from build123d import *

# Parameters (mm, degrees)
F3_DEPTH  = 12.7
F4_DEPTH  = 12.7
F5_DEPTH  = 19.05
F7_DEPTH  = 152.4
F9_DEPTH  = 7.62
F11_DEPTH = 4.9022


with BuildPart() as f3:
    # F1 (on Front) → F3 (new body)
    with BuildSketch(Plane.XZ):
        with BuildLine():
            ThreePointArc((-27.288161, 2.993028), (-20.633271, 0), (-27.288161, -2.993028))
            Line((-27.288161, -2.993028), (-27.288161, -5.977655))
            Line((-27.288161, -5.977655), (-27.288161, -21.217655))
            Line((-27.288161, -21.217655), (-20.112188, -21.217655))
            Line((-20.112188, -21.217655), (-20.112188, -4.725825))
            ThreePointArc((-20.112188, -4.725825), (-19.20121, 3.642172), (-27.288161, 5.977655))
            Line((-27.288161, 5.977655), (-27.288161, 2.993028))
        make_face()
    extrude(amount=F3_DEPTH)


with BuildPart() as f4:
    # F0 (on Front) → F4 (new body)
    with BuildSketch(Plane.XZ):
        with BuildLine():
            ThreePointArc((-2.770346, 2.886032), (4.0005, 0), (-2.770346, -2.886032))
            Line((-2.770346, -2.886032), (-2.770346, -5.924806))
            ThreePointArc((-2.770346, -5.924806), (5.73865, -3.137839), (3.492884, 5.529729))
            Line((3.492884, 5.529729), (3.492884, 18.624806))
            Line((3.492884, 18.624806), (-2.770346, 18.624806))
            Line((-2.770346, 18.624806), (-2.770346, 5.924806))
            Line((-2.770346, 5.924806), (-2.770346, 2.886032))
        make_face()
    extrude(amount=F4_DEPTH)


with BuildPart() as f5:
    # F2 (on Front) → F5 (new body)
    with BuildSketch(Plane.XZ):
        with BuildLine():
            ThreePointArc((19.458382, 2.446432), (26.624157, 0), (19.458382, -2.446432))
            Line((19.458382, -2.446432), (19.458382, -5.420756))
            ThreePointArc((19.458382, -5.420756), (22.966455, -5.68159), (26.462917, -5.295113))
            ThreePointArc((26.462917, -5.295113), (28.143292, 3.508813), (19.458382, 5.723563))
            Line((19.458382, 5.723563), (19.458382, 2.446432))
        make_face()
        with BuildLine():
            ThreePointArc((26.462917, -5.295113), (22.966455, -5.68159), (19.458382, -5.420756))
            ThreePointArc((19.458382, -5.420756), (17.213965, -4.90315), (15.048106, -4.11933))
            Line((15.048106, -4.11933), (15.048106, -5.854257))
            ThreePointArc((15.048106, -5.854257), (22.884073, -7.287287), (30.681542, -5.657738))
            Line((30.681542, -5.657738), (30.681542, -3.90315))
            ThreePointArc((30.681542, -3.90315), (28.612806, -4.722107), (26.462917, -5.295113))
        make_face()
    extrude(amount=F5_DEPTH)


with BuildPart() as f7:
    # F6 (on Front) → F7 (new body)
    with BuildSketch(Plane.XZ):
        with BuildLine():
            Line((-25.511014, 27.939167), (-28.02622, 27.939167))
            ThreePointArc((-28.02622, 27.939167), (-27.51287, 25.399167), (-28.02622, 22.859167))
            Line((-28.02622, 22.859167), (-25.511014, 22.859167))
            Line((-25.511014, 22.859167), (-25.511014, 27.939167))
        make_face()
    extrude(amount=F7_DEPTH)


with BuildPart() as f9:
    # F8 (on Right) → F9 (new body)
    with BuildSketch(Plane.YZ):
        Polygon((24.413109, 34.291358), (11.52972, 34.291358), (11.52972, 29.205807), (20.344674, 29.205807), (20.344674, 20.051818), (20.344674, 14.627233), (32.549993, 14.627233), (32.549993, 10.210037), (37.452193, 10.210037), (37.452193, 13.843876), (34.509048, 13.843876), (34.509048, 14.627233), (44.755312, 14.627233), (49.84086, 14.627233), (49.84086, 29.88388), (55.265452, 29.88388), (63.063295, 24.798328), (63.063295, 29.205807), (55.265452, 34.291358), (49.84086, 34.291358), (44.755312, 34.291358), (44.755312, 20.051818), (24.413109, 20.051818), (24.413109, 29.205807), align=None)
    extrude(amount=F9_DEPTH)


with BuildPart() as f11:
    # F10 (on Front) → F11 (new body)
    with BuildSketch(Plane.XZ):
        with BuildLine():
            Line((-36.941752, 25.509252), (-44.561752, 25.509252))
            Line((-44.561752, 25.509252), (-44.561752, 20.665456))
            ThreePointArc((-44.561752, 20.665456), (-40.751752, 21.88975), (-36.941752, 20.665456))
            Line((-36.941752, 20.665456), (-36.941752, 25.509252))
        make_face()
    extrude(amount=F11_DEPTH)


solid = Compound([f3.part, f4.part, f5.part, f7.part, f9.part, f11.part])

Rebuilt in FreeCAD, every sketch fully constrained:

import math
import FreeCAD as App
import Part
import Sketcher
from FreeCAD import Vector
Q = App.Units.Quantity


def add_polygon(sketch, points):
    """Adds a closed chain of lines whose ends are joined by coincident constraints."""
    first, n = sketch.GeometryCount, len(points)
    for a, b in zip(points, points[1:] + points[:1]):
        sketch.addGeometry(Part.LineSegment(App.Vector(*a, 0), App.Vector(*b, 0)), False)
    for i in range(n):
        sketch.addConstraint(Sketcher.Constraint("Coincident", first + i, 2, first + (i + 1) % n, 1))

doc = App.newDocument("Part")
body = doc.addObject("PartDesign::Body", "Body")

# Sketch on XZ plane
sketch1 = body.newObject("Sketcher::SketchObject", "Sketch")
sketch1.AttachmentSupport = (doc.getObject("XZ_Plane"), [""])
sketch1.MapMode = "FlatFace"
sketch1.addGeometry([
    Part.ArcOfCircle(Part.Circle(Vector(-24.6, 0, 0), Vector(0, 0, 1), 4), math.radians(-132), math.radians(132)),  # 0
    Part.LineSegment(Vector(-27.3, -3, 0), Vector(-27.3, -21.2, 0)),  # 1
    Part.LineSegment(Vector(-27.3, -21.2, 0), Vector(-20.1, -21.2, 0)),  # 2
    Part.LineSegment(Vector(-20.1, -21.2, 0), Vector(-20.1, -4.7, 0)),  # 3
    Part.ArcOfCircle(Part.Circle(Vector(-24.6, 0, 0), Vector(0, 0, 1), 6.5), math.radians(-46), math.radians(114)),  # 4
    Part.LineSegment(Vector(-27.3, 6, 0), Vector(-27.3, 3, 0)),  # 5
], False)
sketch1.addConstraint([
    Sketcher.Constraint("Coincident", 0, 1, 1, 1),
    Sketcher.Constraint("Coincident", 1, 2, 2, 1),
    Sketcher.Constraint("Coincident", 2, 2, 3, 1),
    Sketcher.Constraint("Coincident", 3, 2, 4, 1),
    Sketcher.Constraint("Coincident", 4, 2, 5, 1),
    Sketcher.Constraint("Coincident", 5, 2, 0, 2),
    Sketcher.Constraint("Vertical", 1),
    Sketcher.Constraint("Horizontal", 2),
    Sketcher.Constraint("Vertical", 3),
    Sketcher.Constraint("Vertical", 5),
    Sketcher.Constraint("Coincident", 4, 3, 0, 3),
    Sketcher.Constraint("Symmetric", 0, 1, 5, 2, -1),
    Sketcher.Constraint("Radius", 0, Q("0.1575 in")),
    Sketcher.Constraint("Radius", 4, Q("0.2575 in")),
    Sketcher.Constraint("DistanceY", 3, 1, 3, 2, Q("16.49183 mm")),
    Sketcher.Constraint("DistanceX", 2, 1, 2, 2, Q("7.175973 mm")),
    Sketcher.Constraint("DistanceY", 1, 2, 1, 1, Q("18.224627 mm")),
    Sketcher.Constraint("DistanceX", 0, 3, -1, 1, Q("24.633771 mm")),
])
pad1 = body.newObject("PartDesign::Pad", "Pad")
pad1.Profile = sketch1
pad1.Length = Q("0.5 in")
body2 = doc.addObject("PartDesign::Body", "Body001")

# Sketch on XZ plane
sketch2 = body2.newObject("Sketcher::SketchObject", "Sketch001")
sketch2.AttachmentSupport = (doc.getObject("XZ_Plane001"), [""])
sketch2.MapMode = "FlatFace"
sketch2.addGeometry([
    Part.ArcOfCircle(Part.Circle(Vector(0, 0, 0), Vector(0, 0, 1), 4), math.radians(-134), math.radians(134)),  # 0
    Part.LineSegment(Vector(-2.8, -2.9, 0), Vector(-2.8, -5.9, 0)),  # 1
    Part.ArcOfCircle(Part.Circle(Vector(0, 0, 0), Vector(0, 0, 1), 6.5), math.radians(-115), math.radians(58)),  # 2
    Part.LineSegment(Vector(3.5, 5.5, 0), Vector(3.5, 18.6, 0)),  # 3
    Part.LineSegment(Vector(3.5, 18.6, 0), Vector(-2.8, 18.6, 0)),  # 4
    Part.LineSegment(Vector(-2.8, 18.6, 0), Vector(-2.8, 2.9, 0)),  # 5
], False)
sketch2.addConstraint([
    Sketcher.Constraint("Coincident", 0, 1, 1, 1),
    Sketcher.Constraint("Coincident", 1, 2, 2, 1),
    Sketcher.Constraint("Coincident", 2, 2, 3, 1),
    Sketcher.Constraint("Coincident", 3, 2, 4, 1),
    Sketcher.Constraint("Coincident", 4, 2, 5, 1),
    Sketcher.Constraint("Coincident", 5, 2, 0, 2),
    Sketcher.Constraint("Vertical", 1),
    Sketcher.Constraint("Vertical", 3),
    Sketcher.Constraint("Horizontal", 4),
    Sketcher.Constraint("Vertical", 5),
    Sketcher.Constraint("Coincident", 0, 3, -1, 1),
    Sketcher.Constraint("Coincident", 2, 3, -1, 1),
    Sketcher.Constraint("Vertical", 1, 2, 4, 2),
    Sketcher.Constraint("Radius", 0, Q("0.1575 in")),
    Sketcher.Constraint("Radius", 2, Q("0.2575 in")),
    Sketcher.Constraint("DistanceX", 4, 2, 4, 1, Q("6.26323 mm")),
    Sketcher.Constraint("DistanceY", 1, 2, 1, 1, Q("3.038774 mm")),
    Sketcher.Constraint("DistanceY", 3, 1, 3, 2, Q("13.095077 mm")),
])
pad2 = body2.newObject("PartDesign::Pad", "Pad001")
pad2.Profile = sketch2
pad2.Length = Q("0.5 in")
body3 = doc.addObject("PartDesign::Body", "Body002")

# Sketch on XZ plane
sketch3 = body3.newObject("Sketcher::SketchObject", "Sketch002")
sketch3.AttachmentSupport = (doc.getObject("XZ_Plane002"), [""])
sketch3.MapMode = "FlatFace"
sketch3.addGeometry([
    Part.ArcOfCircle(Part.Circle(Vector(22.6, 0, 0), Vector(0, 0, 1), 4), math.radians(-142), math.radians(142)),  # 0
    Part.LineSegment(Vector(19.5, -2.4, 0), Vector(19.5, -5.4, 0)),  # 1
    Part.ArcOfCircle(Part.Circle(Vector(22.6, 13.4, 0), Vector(0, 0, 1), 19.1), math.radians(-113.35), math.radians(-99.53)),  # 2
    Part.LineSegment(Vector(15, -4.1, 0), Vector(15, -5.9, 0)),  # 3
    Part.ArcOfCircle(Part.Circle(Vector(22.6, 13.4, 0), Vector(0, 0, 1), 20.7), math.radians(-111), math.radians(-67)),  # 4
    Part.LineSegment(Vector(30.7, -5.7, 0), Vector(30.7, -3.9, 0)),  # 5
    Part.ArcOfCircle(Part.Circle(Vector(22.6, 13.4, 0), Vector(0, 0, 1), 19.1), math.radians(-78.41), math.radians(-65.07)),  # 6
    Part.ArcOfCircle(Part.Circle(Vector(22.6, 0, 0), Vector(0, 0, 1), 6.5), math.radians(-54), math.radians(119)),  # 7
    Part.LineSegment(Vector(19.5, 5.7, 0), Vector(19.5, 2.4, 0)),  # 8
], False)
sketch3.addConstraint([
    Sketcher.Constraint("Coincident", 0, 1, 1, 1),
    Sketcher.Constraint("Coincident", 1, 2, 2, 2),
    Sketcher.Constraint("Coincident", 2, 1, 3, 1),
    Sketcher.Constraint("Coincident", 3, 2, 4, 1),
    Sketcher.Constraint("Coincident", 4, 2, 5, 1),
    Sketcher.Constraint("Coincident", 5, 2, 6, 2),
    Sketcher.Constraint("Coincident", 6, 1, 7, 1),
    Sketcher.Constraint("Coincident", 7, 2, 8, 1),
    Sketcher.Constraint("Coincident", 8, 2, 0, 2),
    Sketcher.Constraint("Vertical", 1),
    Sketcher.Constraint("Vertical", 3),
    Sketcher.Constraint("Vertical", 5),
    Sketcher.Constraint("Vertical", 8),
    Sketcher.Constraint("Coincident", 7, 3, 0, 3),
    Sketcher.Constraint("Symmetric", 0, 1, 8, 2, -1),
    Sketcher.Constraint("Vertical", 0, 3, 4, 3),
    Sketcher.Constraint("Radius", 0, Q("0.1575 in")),
    Sketcher.Constraint("Radius", 7, Q("0.2575 in")),
    Sketcher.Constraint("Radius", 2, Q("19.113931 mm")),
    Sketcher.Constraint("Radius", 4, Q("20.71814 mm")),
    Sketcher.Constraint("Radius", 6, Q("19.113824 mm")),
    Sketcher.Constraint("DistanceY", 8, 2, 8, 1, Q("3.277131 mm")),
    Sketcher.Constraint("DistanceY", 0, 1, 2, 3, Q("15.875698 mm")),
    Sketcher.Constraint("DistanceY", 3, 2, 1, 2, Q("0.433501 mm")),
    Sketcher.Constraint("DistanceY", 7, 2, 6, 3, Q("7.7056 mm")),
    Sketcher.Constraint("DistanceY", 1, 2, 1, 1, Q("2.974324 mm")),
    Sketcher.Constraint("DistanceY", 3, 2, 3, 1, Q("1.734927 mm")),
    Sketcher.Constraint("DistanceY", 5, 1, 5, 2, Q("1.754588 mm")),
    Sketcher.Constraint("DistanceX", -1, 1, 2, 3, Q("22.623668 mm")),
    Sketcher.Constraint("DistanceX", -1, 1, 4, 2, Q("30.681542 mm")),
])
pad3 = body3.newObject("PartDesign::Pad", "Pad002")
pad3.Profile = sketch3
pad3.Length = Q("0.75 in")
body4 = doc.addObject("PartDesign::Body", "Body003")

# Sketch on XZ plane
sketch4 = body4.newObject("Sketcher::SketchObject", "Sketch003")
sketch4.AttachmentSupport = (doc.getObject("XZ_Plane003"), [""])
sketch4.MapMode = "FlatFace"
sketch4.addGeometry([
    Part.LineSegment(Vector(-25.5, 27.9, 0), Vector(-28, 27.9, 0)),
    Part.ArcOfCircle(Part.Circle(Vector(-34.1, 25.4, 0), Vector(0, 0, 1), 6.5), math.radians(-23), math.radians(23)),
    Part.LineSegment(Vector(-28, 22.9, 0), Vector(-25.5, 22.9, 0)),
    Part.LineSegment(Vector(-25.5, 22.9, 0), Vector(-25.5, 27.9, 0)),
], False)
sketch4.addConstraint([
    Sketcher.Constraint("Coincident", 0, 2, 1, 2),
    Sketcher.Constraint("Coincident", 1, 1, 2, 1),
    Sketcher.Constraint("Coincident", 2, 2, 3, 1),
    Sketcher.Constraint("Coincident", 3, 2, 0, 1),
    Sketcher.Constraint("Horizontal", 0),
    Sketcher.Constraint("Horizontal", 2),
    Sketcher.Constraint("Vertical", 3),
    Sketcher.Constraint("Vertical", 0, 2, 1, 1),
    Sketcher.Constraint("DistanceY", 3, 1, 3, 2, Q("0.2 in")),
    Sketcher.Constraint("Radius", 1, Q("0.2574999 in")),
    Sketcher.Constraint("DistanceX", 0, 2, 0, 1, Q("2.515206 mm")),
    Sketcher.Constraint("DistanceX", 0, 2, -1, 1, Q("28.02622 mm")),
    Sketcher.Constraint("DistanceY", -1, 1, 1, 3, Q("25.399167 mm")),
])
pad4 = body4.newObject("PartDesign::Pad", "Pad003")
pad4.Profile = sketch4
pad4.Length = Q("6 in")
body5 = doc.addObject("PartDesign::Body", "Body004")

# Sketch on YZ plane
sketch5 = body5.newObject("Sketcher::SketchObject", "Sketch004")
sketch5.AttachmentSupport = (doc.getObject("YZ_Plane004"), [""])
sketch5.MapMode = "FlatFace"
add_polygon(sketch5, [(24.4, 34.3), (11.5, 34.3), (11.5, 29.2), (20.3, 29.2), (20.3, 14.6), (32.5, 14.6), (32.5, 10.2), (37.5, 10.2), (37.5, 13.8), (34.5, 13.8), (34.5, 14.6), (49.8, 14.6), (49.8, 29.9), (55.3, 29.9), (63.1, 24.8), (63.1, 29.2), (55.3, 34.3), (44.8, 34.3), (44.8, 20.1), (24.4, 20.1)])  # lines 0-19
sketch5.addConstraint([
    Sketcher.Constraint("Horizontal", 0),
    Sketcher.Constraint("Vertical", 1),
    Sketcher.Constraint("Horizontal", 2),
    Sketcher.Constraint("Vertical", 3),
    Sketcher.Constraint("Horizontal", 4),
    Sketcher.Constraint("Vertical", 5),
    Sketcher.Constraint("Horizontal", 6),
    Sketcher.Constraint("Vertical", 7),
    Sketcher.Constraint("Horizontal", 8),
    Sketcher.Constraint("Vertical", 9),
    Sketcher.Constraint("Horizontal", 10),
    Sketcher.Constraint("Vertical", 11),
    Sketcher.Constraint("Horizontal", 12),
    Sketcher.Constraint("Vertical", 14),
    Sketcher.Constraint("Horizontal", 16),
    Sketcher.Constraint("Vertical", 17),
    Sketcher.Constraint("Horizontal", 18),
    Sketcher.Constraint("Vertical", 19),
    Sketcher.Constraint("Parallel", 13, 15),
    Sketcher.Constraint("Horizontal", 4, 2, 9, 2),
    Sketcher.Constraint("Horizontal", 2, 2, 14, 2),
    Sketcher.Constraint("Horizontal", 0, 2, 15, 2),
    Sketcher.Constraint("Vertical", 12, 2, 15, 2),
    Sketcher.Constraint("DistanceX", 6, 1, 6, 2, Q("0.193 in")),
    Sketcher.Constraint("DistanceX", 0, 2, 0, 1, Q("12.883389 mm")),
    Sketcher.Constraint("DistanceX", 4, 1, 4, 2, Q("12.205319 mm")),
    Sketcher.Constraint("DistanceX", 10, 1, 10, 2, Q("15.331812 mm")),
    Sketcher.Constraint("DistanceX", 16, 2, 16, 1, Q("10.51014 mm")),
    Sketcher.Constraint("DistanceY", 1, 2, 1, 1, Q("5.085551 mm")),
    Sketcher.Constraint("DistanceY", 7, 1, 7, 2, Q("3.633839 mm")),
    Sketcher.Constraint("DistanceY", 14, 1, 14, 2, Q("4.407479 mm")),
    Sketcher.Constraint("DistanceY", 17, 2, 17, 1, Q("14.23954 mm")),
    Sketcher.Constraint("DistanceX", 7, 2, 13, 2, Q("25.611102 mm")),
    Sketcher.Constraint("Distance", 13, Q("9.309629 mm")),
    Sketcher.Constraint("DistanceX", 2, 1, 2, 2, Q("8.814954 mm")),
    Sketcher.Constraint("DistanceX", 8, 2, 8, 1, Q("2.943145 mm")),
    Sketcher.Constraint("DistanceY", 3, 2, 3, 1, Q("14.578574 mm")),
    Sketcher.Constraint("DistanceY", 5, 2, 5, 1, Q("4.417196 mm")),
    Sketcher.Constraint("DistanceX", -1, 1, 0, 2, Q("11.52972 mm")),
    Sketcher.Constraint("DistanceY", -1, 1, 0, 2, Q("34.291358 mm")),
])
pad5 = body5.newObject("PartDesign::Pad", "Pad004")
pad5.Profile = sketch5
pad5.Length = Q("0.3 in")
body6 = doc.addObject("PartDesign::Body", "Body005")

# Sketch on XZ plane
sketch6 = body6.newObject("Sketcher::SketchObject", "Sketch005")
sketch6.AttachmentSupport = (doc.getObject("XZ_Plane005"), [""])
sketch6.MapMode = "FlatFace"
sketch6.addGeometry([
    Part.LineSegment(Vector(-36.9, 25.5, 0), Vector(-44.6, 25.5, 0)),
    Part.LineSegment(Vector(-44.6, 25.5, 0), Vector(-44.6, 20.7, 0)),
    Part.ArcOfCircle(Part.Circle(Vector(-40.8, 15.3, 0), Vector(0, 0, 1), 6.5), math.radians(54), math.radians(126)),
    Part.LineSegment(Vector(-36.9, 20.7, 0), Vector(-36.9, 25.5, 0)),
], False)
sketch6.addConstraint([
    Sketcher.Constraint("Coincident", 0, 2, 1, 1),
    Sketcher.Constraint("Coincident", 1, 2, 2, 2),
    Sketcher.Constraint("Coincident", 2, 1, 3, 1),
    Sketcher.Constraint("Coincident", 3, 2, 0, 1),
    Sketcher.Constraint("Horizontal", 0),
    Sketcher.Constraint("Vertical", 1),
    Sketcher.Constraint("Vertical", 3),
    Sketcher.Constraint("Horizontal", 1, 2, 2, 1),
    Sketcher.Constraint("DistanceX", 0, 2, 0, 1, Q("0.3 in")),
    Sketcher.Constraint("Radius", 2, Q("0.2575001 in")),
    Sketcher.Constraint("DistanceY", 2, 3, 0, 2, Q("0.4000002 in")),
    Sketcher.Constraint("DistanceX", 0, 2, -1, 1, Q("44.561752 mm")),
    Sketcher.Constraint("DistanceY", -1, 1, 0, 2, Q("25.509252 mm")),
])
pad6 = body6.newObject("PartDesign::Pad", "Pad005")
pad6.Profile = sketch6
pad6.Length = Q("0.193 in")

doc.recompute()
